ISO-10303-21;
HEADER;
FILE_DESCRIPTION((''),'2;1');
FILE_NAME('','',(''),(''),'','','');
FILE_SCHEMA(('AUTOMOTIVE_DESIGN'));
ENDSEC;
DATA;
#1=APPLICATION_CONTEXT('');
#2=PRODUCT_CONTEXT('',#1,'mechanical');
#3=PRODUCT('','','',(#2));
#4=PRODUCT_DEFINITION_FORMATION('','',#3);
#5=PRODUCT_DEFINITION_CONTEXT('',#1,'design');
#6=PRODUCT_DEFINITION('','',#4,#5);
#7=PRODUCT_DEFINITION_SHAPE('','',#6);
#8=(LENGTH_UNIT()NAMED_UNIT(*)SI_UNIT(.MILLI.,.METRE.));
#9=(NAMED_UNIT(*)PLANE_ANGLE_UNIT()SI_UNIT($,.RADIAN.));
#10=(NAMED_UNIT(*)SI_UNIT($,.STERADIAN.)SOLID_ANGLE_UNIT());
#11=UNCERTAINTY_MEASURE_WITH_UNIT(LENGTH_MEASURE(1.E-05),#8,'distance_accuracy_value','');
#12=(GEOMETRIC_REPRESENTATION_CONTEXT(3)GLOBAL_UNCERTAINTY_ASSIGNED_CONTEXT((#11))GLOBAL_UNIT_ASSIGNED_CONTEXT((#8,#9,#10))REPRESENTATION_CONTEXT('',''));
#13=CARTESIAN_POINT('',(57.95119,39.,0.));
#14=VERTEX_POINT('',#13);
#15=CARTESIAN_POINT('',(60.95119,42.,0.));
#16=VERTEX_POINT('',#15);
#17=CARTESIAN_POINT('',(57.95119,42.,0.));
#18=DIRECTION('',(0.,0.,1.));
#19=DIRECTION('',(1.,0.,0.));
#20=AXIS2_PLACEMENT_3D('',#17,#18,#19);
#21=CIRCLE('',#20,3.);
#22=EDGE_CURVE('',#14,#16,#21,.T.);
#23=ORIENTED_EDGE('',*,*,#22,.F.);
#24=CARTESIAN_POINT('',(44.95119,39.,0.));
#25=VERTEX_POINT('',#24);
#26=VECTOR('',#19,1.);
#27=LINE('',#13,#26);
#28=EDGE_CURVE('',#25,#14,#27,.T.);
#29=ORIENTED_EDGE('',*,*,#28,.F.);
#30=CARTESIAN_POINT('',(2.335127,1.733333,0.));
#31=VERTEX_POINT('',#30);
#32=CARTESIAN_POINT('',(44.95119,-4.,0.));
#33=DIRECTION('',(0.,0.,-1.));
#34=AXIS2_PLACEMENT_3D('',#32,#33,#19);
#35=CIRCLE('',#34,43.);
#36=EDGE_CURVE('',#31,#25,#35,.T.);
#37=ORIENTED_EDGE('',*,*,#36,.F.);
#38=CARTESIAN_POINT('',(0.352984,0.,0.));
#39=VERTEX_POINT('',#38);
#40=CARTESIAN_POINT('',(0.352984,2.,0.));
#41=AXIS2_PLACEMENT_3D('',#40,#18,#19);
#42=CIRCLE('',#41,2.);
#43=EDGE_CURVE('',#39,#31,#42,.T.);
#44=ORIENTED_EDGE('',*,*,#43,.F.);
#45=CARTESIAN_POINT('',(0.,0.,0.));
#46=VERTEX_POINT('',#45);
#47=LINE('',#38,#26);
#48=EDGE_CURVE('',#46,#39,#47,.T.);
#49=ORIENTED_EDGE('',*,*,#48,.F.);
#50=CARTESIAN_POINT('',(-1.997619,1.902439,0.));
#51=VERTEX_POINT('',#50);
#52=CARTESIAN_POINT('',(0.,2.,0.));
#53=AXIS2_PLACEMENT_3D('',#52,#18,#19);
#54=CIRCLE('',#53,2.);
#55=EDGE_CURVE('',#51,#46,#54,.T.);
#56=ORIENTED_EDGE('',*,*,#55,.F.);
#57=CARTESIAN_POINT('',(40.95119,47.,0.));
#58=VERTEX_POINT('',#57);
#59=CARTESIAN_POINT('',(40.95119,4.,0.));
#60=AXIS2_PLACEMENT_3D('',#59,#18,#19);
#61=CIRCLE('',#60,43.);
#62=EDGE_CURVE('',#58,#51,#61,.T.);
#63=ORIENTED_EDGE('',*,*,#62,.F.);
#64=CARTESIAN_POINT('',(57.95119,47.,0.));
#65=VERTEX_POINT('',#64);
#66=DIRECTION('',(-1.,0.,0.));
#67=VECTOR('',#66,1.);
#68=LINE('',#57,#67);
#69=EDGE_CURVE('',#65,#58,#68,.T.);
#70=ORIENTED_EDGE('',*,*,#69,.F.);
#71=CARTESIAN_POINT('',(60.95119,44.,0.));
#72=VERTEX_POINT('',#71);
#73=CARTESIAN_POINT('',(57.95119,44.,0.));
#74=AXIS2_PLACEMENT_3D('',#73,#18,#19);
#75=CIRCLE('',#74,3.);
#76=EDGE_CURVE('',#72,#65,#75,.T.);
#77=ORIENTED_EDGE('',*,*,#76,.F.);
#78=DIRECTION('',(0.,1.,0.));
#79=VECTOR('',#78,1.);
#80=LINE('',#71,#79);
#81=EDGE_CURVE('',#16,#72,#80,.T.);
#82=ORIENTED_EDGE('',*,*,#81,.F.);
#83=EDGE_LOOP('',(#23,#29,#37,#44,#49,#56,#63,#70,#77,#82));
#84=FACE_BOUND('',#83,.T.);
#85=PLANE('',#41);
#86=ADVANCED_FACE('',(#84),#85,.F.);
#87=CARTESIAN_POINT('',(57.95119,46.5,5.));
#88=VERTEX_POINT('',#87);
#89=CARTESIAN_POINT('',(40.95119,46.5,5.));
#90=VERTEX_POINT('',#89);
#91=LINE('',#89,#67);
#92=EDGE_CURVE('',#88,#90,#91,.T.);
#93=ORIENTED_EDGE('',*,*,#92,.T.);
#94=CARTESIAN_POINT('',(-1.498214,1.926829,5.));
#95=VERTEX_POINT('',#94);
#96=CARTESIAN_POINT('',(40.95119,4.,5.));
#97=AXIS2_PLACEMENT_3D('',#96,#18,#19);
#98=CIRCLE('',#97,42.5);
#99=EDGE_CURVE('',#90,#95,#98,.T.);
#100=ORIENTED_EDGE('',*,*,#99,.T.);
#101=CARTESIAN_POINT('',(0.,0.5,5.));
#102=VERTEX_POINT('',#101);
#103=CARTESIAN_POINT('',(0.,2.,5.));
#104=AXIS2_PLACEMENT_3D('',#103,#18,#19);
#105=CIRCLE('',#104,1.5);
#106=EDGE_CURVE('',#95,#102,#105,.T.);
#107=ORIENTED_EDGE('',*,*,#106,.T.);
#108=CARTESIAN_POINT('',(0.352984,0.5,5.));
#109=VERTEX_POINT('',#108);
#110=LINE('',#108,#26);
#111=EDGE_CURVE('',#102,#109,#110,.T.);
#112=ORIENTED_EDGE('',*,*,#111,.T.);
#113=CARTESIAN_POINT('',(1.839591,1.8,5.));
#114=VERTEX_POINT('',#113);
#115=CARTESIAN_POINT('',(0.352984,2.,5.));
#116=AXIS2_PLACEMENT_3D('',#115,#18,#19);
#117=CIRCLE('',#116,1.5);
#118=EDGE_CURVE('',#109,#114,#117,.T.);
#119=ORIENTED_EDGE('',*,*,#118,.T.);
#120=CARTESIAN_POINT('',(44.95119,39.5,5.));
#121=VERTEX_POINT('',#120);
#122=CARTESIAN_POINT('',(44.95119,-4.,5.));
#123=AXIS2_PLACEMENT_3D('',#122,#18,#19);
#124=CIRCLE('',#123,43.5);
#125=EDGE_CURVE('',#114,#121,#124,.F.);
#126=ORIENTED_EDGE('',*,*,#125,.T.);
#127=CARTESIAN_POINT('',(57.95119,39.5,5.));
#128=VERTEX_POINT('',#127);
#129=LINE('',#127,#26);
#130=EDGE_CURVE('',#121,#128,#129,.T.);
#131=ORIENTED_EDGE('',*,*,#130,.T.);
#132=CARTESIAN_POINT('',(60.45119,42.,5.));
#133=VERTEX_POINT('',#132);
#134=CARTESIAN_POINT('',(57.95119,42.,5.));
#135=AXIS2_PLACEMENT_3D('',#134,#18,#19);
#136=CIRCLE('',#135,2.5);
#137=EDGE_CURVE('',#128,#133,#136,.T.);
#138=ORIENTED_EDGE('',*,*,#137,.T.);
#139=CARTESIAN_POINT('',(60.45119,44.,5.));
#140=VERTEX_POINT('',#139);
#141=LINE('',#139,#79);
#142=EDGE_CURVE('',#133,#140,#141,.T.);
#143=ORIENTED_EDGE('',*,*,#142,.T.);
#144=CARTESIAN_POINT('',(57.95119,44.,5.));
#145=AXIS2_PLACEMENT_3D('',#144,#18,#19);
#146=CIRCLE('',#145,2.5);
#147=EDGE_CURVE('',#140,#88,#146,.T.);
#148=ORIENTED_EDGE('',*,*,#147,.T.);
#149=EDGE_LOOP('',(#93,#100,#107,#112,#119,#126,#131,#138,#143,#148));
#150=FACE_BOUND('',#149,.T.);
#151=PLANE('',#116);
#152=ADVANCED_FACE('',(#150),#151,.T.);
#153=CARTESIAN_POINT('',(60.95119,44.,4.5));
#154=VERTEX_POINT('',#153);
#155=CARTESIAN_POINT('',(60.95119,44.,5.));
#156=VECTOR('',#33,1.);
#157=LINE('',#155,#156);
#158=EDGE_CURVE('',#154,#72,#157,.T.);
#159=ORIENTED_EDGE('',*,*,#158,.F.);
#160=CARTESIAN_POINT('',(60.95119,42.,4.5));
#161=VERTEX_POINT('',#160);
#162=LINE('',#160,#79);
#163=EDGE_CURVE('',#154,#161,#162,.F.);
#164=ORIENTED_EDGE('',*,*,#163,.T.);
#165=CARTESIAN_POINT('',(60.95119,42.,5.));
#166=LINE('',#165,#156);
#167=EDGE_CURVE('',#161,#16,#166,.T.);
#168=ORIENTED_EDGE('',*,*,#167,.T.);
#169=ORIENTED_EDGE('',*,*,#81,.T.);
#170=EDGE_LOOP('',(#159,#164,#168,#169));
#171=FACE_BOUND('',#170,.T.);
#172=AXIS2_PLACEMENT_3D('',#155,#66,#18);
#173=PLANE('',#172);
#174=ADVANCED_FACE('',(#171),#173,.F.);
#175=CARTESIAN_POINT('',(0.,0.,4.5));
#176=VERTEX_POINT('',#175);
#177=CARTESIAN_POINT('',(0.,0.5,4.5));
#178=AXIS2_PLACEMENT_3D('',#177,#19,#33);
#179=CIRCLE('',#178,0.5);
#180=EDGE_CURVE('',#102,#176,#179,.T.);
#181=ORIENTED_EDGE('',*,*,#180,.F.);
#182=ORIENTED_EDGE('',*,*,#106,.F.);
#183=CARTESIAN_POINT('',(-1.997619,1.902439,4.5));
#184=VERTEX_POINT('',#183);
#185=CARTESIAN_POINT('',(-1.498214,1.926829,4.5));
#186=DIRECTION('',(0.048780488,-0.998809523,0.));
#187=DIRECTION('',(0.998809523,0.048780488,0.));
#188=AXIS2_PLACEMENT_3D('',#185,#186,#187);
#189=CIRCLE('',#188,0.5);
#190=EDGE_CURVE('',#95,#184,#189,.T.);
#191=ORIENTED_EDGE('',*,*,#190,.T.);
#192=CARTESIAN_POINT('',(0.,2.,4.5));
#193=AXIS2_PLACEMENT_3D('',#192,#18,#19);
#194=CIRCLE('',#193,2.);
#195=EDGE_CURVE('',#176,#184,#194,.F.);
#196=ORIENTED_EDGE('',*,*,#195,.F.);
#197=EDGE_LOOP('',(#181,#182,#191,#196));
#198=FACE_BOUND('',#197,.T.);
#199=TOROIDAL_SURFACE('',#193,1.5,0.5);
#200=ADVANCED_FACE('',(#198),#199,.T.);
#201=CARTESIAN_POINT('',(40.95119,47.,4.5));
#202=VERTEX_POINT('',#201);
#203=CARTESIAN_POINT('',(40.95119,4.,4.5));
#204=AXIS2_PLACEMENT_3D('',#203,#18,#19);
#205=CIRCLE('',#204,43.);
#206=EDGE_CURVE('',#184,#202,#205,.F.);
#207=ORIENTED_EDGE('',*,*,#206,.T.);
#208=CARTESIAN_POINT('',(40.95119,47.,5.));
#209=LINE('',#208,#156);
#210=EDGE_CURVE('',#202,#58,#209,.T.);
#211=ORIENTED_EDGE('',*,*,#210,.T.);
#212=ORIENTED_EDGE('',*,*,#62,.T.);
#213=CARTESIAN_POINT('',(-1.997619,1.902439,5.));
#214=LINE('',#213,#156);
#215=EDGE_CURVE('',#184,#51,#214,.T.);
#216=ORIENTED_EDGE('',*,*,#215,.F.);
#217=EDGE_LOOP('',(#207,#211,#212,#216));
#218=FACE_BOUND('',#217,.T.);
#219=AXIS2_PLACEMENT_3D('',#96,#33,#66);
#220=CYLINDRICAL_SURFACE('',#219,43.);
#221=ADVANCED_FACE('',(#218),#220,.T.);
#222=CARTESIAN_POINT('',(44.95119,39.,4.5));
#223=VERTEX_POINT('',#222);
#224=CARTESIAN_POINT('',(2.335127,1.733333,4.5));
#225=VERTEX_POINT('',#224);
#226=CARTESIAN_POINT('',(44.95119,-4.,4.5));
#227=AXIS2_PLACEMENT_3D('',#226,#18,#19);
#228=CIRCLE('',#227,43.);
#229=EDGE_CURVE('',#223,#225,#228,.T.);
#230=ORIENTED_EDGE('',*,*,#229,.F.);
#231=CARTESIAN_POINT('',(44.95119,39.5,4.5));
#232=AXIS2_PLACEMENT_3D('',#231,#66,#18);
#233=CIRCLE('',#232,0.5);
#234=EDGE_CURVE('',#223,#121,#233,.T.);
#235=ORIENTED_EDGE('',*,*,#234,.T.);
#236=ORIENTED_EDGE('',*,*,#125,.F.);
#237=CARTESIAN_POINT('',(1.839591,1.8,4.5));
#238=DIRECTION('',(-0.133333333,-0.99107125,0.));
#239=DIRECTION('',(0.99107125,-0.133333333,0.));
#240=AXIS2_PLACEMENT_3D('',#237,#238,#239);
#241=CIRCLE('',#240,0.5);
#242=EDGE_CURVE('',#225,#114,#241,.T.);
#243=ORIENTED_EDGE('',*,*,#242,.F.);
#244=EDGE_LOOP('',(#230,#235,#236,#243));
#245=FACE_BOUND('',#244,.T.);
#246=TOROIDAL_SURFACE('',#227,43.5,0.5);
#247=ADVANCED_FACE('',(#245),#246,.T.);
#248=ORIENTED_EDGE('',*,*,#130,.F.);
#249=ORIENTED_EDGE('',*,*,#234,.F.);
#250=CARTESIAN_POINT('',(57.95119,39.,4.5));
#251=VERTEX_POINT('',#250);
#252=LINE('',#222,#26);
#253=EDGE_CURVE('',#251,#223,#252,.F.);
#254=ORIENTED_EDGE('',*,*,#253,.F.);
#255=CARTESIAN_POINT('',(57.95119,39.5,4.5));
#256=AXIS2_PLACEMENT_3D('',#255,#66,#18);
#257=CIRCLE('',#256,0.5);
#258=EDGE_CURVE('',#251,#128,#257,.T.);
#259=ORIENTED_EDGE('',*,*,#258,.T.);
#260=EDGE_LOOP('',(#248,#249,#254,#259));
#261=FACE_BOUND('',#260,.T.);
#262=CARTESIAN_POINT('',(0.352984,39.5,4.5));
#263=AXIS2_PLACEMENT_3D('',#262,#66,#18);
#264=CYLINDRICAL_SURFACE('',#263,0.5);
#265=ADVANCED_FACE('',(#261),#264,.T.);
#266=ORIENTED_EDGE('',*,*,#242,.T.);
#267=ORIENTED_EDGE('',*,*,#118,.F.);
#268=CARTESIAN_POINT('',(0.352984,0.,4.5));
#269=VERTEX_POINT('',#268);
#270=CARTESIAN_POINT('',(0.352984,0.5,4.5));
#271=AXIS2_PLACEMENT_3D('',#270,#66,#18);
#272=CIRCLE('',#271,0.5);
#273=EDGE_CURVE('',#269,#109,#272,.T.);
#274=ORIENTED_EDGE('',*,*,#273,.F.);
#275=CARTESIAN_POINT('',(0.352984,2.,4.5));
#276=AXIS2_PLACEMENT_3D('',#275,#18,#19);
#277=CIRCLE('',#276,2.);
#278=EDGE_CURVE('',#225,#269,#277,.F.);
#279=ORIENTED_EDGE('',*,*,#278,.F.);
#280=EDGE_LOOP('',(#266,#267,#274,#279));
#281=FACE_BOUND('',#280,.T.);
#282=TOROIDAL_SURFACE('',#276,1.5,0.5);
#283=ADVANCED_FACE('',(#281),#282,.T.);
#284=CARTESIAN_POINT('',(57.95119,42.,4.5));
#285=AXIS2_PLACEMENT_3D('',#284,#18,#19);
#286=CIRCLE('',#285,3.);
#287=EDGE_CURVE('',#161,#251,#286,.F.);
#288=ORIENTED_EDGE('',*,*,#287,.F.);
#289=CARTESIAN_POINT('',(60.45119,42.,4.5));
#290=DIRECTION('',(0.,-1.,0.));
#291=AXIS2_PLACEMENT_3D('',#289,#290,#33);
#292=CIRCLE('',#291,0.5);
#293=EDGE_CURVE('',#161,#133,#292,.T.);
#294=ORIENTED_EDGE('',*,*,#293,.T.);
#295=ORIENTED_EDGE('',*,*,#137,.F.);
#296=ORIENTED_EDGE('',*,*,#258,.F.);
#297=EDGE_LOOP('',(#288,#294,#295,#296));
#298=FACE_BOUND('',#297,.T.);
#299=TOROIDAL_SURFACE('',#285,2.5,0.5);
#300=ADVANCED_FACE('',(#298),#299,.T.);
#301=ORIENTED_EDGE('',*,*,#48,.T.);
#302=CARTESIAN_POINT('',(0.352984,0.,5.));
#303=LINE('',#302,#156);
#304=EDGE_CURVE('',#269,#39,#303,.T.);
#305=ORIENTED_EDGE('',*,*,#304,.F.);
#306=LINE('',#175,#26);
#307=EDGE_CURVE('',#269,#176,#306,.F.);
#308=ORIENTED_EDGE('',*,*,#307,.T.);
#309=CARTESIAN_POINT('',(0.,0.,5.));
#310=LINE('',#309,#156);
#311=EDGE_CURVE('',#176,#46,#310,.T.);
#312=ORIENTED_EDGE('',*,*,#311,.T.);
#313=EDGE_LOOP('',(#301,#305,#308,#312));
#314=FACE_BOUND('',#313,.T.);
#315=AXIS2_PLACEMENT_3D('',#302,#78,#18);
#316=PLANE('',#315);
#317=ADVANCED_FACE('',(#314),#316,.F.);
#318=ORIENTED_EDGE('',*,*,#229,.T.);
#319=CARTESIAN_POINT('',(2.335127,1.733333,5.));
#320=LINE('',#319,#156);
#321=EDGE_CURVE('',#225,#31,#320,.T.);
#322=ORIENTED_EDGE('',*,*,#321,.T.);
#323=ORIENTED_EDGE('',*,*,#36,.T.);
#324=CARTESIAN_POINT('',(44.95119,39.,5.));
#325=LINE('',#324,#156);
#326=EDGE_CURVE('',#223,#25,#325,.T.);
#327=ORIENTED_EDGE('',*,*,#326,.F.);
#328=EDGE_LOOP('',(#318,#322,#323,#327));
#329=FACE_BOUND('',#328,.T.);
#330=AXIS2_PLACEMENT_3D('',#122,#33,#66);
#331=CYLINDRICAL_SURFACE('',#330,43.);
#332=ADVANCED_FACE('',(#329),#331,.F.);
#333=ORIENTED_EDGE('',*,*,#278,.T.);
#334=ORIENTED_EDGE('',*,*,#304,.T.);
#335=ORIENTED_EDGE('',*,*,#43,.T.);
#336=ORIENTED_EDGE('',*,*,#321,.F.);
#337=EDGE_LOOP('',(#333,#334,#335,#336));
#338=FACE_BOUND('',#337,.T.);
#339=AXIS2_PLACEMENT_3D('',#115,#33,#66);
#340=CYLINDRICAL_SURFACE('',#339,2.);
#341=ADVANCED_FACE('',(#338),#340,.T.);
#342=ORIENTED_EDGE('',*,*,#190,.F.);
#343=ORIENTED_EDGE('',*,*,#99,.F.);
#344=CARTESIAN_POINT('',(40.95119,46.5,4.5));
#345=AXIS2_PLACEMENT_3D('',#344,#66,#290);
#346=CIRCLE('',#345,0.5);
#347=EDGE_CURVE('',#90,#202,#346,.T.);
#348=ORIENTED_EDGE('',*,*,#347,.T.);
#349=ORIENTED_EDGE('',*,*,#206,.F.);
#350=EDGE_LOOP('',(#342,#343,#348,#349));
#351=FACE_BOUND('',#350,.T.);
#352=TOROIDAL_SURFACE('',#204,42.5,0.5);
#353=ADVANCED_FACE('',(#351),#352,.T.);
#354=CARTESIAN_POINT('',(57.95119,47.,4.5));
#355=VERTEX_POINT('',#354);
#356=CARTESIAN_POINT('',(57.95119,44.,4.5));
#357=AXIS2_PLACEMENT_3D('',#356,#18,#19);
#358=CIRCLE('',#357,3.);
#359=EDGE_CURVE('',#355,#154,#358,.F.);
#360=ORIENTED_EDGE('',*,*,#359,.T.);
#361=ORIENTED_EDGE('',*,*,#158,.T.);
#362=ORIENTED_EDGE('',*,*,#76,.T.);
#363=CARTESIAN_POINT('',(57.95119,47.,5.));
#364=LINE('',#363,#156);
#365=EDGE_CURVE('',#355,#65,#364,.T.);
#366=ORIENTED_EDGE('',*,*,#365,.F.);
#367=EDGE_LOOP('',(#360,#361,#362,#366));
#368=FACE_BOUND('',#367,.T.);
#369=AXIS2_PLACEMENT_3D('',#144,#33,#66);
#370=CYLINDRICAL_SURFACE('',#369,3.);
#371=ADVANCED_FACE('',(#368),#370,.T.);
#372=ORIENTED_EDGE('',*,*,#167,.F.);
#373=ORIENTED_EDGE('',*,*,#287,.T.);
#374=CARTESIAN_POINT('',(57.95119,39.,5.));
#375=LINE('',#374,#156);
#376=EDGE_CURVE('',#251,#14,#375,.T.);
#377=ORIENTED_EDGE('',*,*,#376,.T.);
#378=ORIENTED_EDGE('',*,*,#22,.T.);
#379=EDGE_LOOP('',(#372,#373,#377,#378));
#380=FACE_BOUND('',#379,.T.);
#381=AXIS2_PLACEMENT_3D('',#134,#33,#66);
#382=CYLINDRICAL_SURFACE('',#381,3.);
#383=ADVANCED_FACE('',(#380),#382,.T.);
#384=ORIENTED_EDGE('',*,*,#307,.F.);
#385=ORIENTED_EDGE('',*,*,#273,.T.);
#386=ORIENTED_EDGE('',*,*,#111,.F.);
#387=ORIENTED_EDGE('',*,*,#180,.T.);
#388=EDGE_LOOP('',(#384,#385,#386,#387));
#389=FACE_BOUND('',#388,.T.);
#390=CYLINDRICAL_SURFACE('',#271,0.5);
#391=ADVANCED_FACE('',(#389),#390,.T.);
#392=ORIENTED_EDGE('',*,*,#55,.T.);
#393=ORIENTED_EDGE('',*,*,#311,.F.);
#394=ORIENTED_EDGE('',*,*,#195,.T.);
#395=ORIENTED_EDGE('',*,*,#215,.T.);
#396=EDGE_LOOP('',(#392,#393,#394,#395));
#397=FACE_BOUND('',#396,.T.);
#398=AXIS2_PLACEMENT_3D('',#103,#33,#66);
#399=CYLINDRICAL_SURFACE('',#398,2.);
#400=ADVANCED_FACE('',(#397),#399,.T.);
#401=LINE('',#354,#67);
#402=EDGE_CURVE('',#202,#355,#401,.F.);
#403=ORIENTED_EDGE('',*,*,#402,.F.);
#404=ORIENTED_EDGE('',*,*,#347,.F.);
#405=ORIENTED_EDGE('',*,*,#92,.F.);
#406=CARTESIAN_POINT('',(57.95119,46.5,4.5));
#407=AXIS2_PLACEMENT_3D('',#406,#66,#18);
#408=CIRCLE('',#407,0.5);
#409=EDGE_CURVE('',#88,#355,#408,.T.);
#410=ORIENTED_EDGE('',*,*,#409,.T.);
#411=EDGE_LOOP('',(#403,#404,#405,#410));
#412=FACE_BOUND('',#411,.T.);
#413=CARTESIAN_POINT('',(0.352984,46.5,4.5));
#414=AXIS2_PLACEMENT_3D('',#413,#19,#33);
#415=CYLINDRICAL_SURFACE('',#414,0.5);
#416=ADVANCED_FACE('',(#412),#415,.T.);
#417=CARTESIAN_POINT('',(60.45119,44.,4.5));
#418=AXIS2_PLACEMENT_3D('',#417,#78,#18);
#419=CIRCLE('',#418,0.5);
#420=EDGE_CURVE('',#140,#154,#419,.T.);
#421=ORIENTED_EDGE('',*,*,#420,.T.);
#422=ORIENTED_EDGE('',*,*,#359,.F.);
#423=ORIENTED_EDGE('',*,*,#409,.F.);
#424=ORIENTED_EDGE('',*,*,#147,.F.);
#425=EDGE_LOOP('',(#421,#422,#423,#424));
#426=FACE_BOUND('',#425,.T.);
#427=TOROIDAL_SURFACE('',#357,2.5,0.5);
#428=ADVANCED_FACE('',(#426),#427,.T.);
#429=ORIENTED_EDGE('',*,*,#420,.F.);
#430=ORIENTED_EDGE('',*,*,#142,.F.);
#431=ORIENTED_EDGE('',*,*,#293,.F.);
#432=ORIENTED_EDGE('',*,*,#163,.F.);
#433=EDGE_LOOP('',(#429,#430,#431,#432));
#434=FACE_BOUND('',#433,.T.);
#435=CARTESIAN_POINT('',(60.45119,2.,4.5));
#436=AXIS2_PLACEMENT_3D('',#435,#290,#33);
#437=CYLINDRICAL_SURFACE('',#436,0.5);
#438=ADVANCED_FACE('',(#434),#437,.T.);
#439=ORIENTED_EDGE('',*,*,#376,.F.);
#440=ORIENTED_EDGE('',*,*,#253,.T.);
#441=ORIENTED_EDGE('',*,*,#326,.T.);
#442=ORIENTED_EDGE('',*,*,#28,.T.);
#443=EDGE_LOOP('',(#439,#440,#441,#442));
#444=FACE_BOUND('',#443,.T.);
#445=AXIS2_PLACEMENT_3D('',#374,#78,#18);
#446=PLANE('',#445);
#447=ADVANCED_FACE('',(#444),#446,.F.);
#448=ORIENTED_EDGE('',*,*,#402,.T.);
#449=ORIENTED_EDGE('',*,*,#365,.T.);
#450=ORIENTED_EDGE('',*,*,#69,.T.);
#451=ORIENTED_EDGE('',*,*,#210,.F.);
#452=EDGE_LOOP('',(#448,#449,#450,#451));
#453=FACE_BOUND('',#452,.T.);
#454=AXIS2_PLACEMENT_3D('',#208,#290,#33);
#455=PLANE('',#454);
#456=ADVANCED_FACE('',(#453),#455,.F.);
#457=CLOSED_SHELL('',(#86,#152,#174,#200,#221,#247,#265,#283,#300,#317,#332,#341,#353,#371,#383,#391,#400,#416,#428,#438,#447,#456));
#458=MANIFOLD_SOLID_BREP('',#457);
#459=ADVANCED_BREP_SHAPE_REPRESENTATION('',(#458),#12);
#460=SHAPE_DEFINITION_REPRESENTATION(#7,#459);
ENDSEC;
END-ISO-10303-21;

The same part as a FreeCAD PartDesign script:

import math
import FreeCAD as App
import Part
import Sketcher
from FreeCAD import Vector
Q = App.Units.Quantity


def edges_at(feature, points):
    """Names of the edges that pass closest to the given points."""
    edges = feature.Shape.Edges
    near = lambda p: min(range(len(edges)), key=lambda i: edges[i].distToShape(Part.Vertex(*p))[0])
    return sorted({f"Edge{near(p) + 1}" for p in points})

doc = App.newDocument("Part")
body = doc.addObject("PartDesign::Body", "Body")

sketch1 = doc.addObject("Sketcher::SketchObject", "Sketch")
body.addObject(sketch1)
sketch1.AttachmentSupport = (doc.XY_Plane, [""])
sketch1.MapMode = "FlatFace"
sketch1.addGeometry([
    Part.LineSegment(Vector(0, 0, 0), Vector(0.35, 0, 0)),
    Part.ArcOfCircle(Part.Circle(Vector(0.35, 2, 0), Vector(0, 0, 1), 2), math.radians(-90), math.radians(-8)),
    Part.ArcOfCircle(Part.Circle(Vector(44.95, -4, 0), Vector(0, 0, 1), 43), math.radians(90), math.radians(172)),
    Part.LineSegment(Vector(44.95, 39, 0), Vector(57.95, 39, 0)),
    Part.ArcOfCircle(Part.Circle(Vector(57.95, 42, 0), Vector(0, 0, 1), 3), math.radians(-90), math.radians(0)),
    Part.LineSegment(Vector(60.95, 42, 0), Vector(60.95, 44, 0)),
    Part.ArcOfCircle(Part.Circle(Vector(57.95, 44, 0), Vector(0, 0, 1), 3), math.radians(0), math.radians(90)),
    Part.LineSegment(Vector(57.95, 47, 0), Vector(40.95, 47, 0)),
    Part.ArcOfCircle(Part.Circle(Vector(40.95, 4, 0), Vector(0, 0, 1), 43), math.radians(90), math.radians(183)),
    Part.ArcOfCircle(Part.Circle(Vector(0, 2, 0), Vector(0, 0, 1), 2), math.radians(-177), math.radians(-90)),
], False)
sketch1.addConstraint([
    Sketcher.Constraint("Tangent", 0, 2, 1, 1),
    Sketcher.Constraint("Tangent", 1, 2, 2, 2),
    Sketcher.Constraint("Tangent", 2, 1, 3, 1),
    Sketcher.Constraint("Tangent", 3, 2, 4, 1),
    Sketcher.Constraint("Tangent", 4, 2, 5, 1),
    Sketcher.Constraint("Tangent", 5, 2, 6, 1),
    Sketcher.Constraint("Tangent", 6, 2, 7, 1),
    Sketcher.Constraint("Tangent", 7, 2, 8, 1),
    Sketcher.Constraint("Tangent", 8, 2, 9, 1),
    Sketcher.Constraint("Tangent", 9, 2, 0, 1),
    Sketcher.Constraint("Horizontal", 0),
    Sketcher.Constraint("Horizontal", 3),
    Sketcher.Constraint("Vertical", 5),
    Sketcher.Constraint("Horizontal", 7),
    Sketcher.Constraint("Coincident", 9, 2, -1, 1),
    Sketcher.Constraint("Equal", 4, 6),
    Sketcher.Constraint("Equal", 2, 8),
    Sketcher.Constraint("Equal", 1, 9),
    Sketcher.Constraint("Radius", 1, Q("2 mm")),
    Sketcher.Constraint("Radius", 2, Q("43 mm")),
    Sketcher.Constraint("Radius", 4, Q("3 mm")),
    Sketcher.Constraint("DistanceX", 3, 1, 3, 2, Q("13 mm")),
    Sketcher.Constraint("DistanceX", 7, 2, 7, 1, Q("17 mm")),
    Sketcher.Constraint("DistanceY", 5, 1, 5, 2, Q("2 mm")),
    Sketcher.Constraint("DistanceY", 2, 3, -1, 1, Q("4 mm")),
])
pad1 = doc.addObject("PartDesign::Pad", "Pad")
body.addObject(pad1)
pad1.Profile = sketch1
pad1.Length = 5
doc.recompute()

fillet = doc.addObject("PartDesign::Fillet", "Fillet")
body.addObject(fillet)
fillet.Base = (pad1, edges_at(pad1, [
    (51.451, 39, 5),
    (60.073, 39.879, 5),
    (60.951, 43, 5),
    (60.073, 46.121, 5),
    (49.451, 47, 5),
    (9.813, 33.655, 5),
    (-1.379, 0.552, 5),
    (0.176, 0, 5),
    (1.67, 0.494, 5),
    (16.645, 28.369, 5),
]))
fillet.Radius = 0.5

doc.recompute()
